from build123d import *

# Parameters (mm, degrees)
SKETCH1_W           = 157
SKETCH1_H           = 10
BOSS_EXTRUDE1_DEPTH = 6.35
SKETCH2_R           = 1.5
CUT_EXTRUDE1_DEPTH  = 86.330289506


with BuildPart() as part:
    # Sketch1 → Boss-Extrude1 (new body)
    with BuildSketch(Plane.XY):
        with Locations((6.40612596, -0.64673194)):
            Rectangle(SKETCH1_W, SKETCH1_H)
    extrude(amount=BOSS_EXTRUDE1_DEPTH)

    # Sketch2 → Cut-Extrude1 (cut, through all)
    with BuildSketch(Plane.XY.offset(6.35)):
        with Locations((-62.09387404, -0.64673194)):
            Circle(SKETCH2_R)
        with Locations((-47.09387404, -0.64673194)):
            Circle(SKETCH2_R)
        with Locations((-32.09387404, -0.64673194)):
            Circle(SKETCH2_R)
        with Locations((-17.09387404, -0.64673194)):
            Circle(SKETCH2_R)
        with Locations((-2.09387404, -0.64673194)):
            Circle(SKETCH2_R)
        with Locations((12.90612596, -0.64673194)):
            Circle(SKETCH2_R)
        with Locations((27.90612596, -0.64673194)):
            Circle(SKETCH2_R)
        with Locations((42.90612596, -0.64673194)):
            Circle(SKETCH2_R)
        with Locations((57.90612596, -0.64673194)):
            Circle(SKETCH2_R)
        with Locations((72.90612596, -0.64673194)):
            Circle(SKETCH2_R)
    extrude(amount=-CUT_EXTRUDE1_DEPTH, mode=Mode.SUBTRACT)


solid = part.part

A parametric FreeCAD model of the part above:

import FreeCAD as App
import Part
import Sketcher

V = App.Vector
Q = App.Units.Quantity


def add_polygon(sketch, points):
    """Adds a closed chain of lines whose ends are joined by coincident constraints."""
    first, n = sketch.GeometryCount, len(points)
    for a, b in zip(points, points[1:] + points[:1]):
        sketch.addGeometry(Part.LineSegment(App.Vector(*a, 0), App.Vector(*b, 0)), False)
    for i in range(n):
        sketch.addConstraint(Sketcher.Constraint("Coincident", first + i, 2, first + (i + 1) % n, 1))

doc = App.newDocument("Part")
body = doc.addObject("PartDesign::Body", "Body")

# Sketch on XY plane
sketch1 = doc.addObject("Sketcher::SketchObject", "Sketch")
body.addObject(sketch1)
sketch1.AttachmentSupport = (doc.XY_Plane, [""])
sketch1.MapMode = "FlatFace"
add_polygon(sketch1, [(-72, 4), (-72, -6), (85, -6), (85, 4)])  # lines 0-3
sketch1.addConstraint([
    Sketcher.Constraint("Vertical", 0),
    Sketcher.Constraint("Horizontal", 1),
    Sketcher.Constraint("Vertical", 2),
    Sketcher.Constraint("Horizontal", 3),
    Sketcher.Constraint("DistanceX", 1, 1, 1, 2, Q("157 mm")),
    Sketcher.Constraint("DistanceY", 0, 2, 0, 1, Q("10 mm")),
    Sketcher.Constraint("DistanceY", 0, 2, -1, 1, Q("5.646732 mm")),
    Sketcher.Constraint("DistanceX", 0, 2, -1, 1, Q("72.093874 mm")),
])
pad1 = doc.addObject("PartDesign::Pad", "Pad")
body.addObject(pad1)
pad1.Profile = sketch1
pad1.Length = 6.35

# Sketch on XY plane
sketch2 = doc.addObject("Sketcher::SketchObject", "Sketch001")
body.addObject(sketch2)
sketch2.AttachmentSupport = (doc.XY_Plane, [""])
sketch2.MapMode = "FlatFace"
sketch2.AttachmentOffset = App.Placement(V(0, 0, 6.35), App.Rotation())
sketch2.addGeometry([
    Part.Circle(V(-62.1, -0.6, 0), V(0, 0, 1), 1.5),  # 0
    Part.Circle(V(-47.1, -0.6, 0), V(0, 0, 1), 1.5),  # 1
    Part.Circle(V(-32.1, -0.6, 0), V(0, 0, 1), 1.5),  # 2
    Part.Circle(V(-17.1, -0.6, 0), V(0, 0, 1), 1.5),  # 3
    Part.Circle(V(-2.1, -0.6, 0), V(0, 0, 1), 1.5),  # 4
    Part.Circle(V(12.9, -0.6, 0), V(0, 0, 1), 1.5),  # 5
    Part.Circle(V(27.9, -0.6, 0), V(0, 0, 1), 1.5),  # 6
    Part.Circle(V(42.9, -0.6, 0), V(0, 0, 1), 1.5),  # 7
    Part.Circle(V(57.9, -0.6, 0), V(0, 0, 1), 1.5),  # 8
    Part.Circle(V(72.9, -0.6, 0), V(0, 0, 1), 1.5),  # 9
], False)
sketch2.addConstraint([
    Sketcher.Constraint("Equal", 0, 1),
    Sketcher.Constraint("Equal", 1, 2),
    Sketcher.Constraint("Equal", 2, 3),
    Sketcher.Constraint("Equal", 3, 4),
    Sketcher.Constraint("Equal", 4, 5),
    Sketcher.Constraint("Equal", 5, 6),
    Sketcher.Constraint("Equal", 6, 7),
    Sketcher.Constraint("Equal", 7, 8),
    Sketcher.Constraint("Equal", 8, 9),
    Sketcher.Constraint("Horizontal", 0, 3, 1, 3),
    Sketcher.Constraint("Horizontal", 1, 3, 2, 3),
    Sketcher.Constraint("Horizontal", 2, 3, 3, 3),
    Sketcher.Constraint("Horizontal", 3, 3, 4, 3),
    Sketcher.Constraint("Horizontal", 4, 3, 5, 3),
    Sketcher.Constraint("Horizontal", 5, 3, 6, 3),
    Sketcher.Constraint("Horizontal", 6, 3, 7, 3),
    Sketcher.Constraint("Horizontal", 7, 3, 8, 3),
    Sketcher.Constraint("Horizontal", 8, 3, 9, 3),
    Sketcher.Constraint("Diameter", 0, Q("3 mm")),
    Sketcher.Constraint("DistanceX", 0, 3, 1, 3, Q("15 mm")),
    Sketcher.Constraint("DistanceX", 1, 3, 2, 3, Q("15 mm")),
    Sketcher.Constraint("DistanceX", 2, 3, 3, 3, Q("15 mm")),
    Sketcher.Constraint("DistanceX", 3, 3, 4, 3, Q("15 mm")),
    Sketcher.Constraint("DistanceX", 4, 3, 5, 3, Q("15 mm")),
    Sketcher.Constraint("DistanceX", 5, 3, 6, 3, Q("15 mm")),
    Sketcher.Constraint("DistanceX", 6, 3, 7, 3, Q("15 mm")),
    Sketcher.Constraint("DistanceX", 7, 3, 8, 3, Q("15 mm")),
    Sketcher.Constraint("DistanceX", 8, 3, 9, 3, Q("15 mm")),
    Sketcher.Constraint("DistanceY", 0, 3, -1, 1, Q("0.646732 mm")),
    Sketcher.Constraint("DistanceX", 0, 3, -1, 1, Q("62.093874 mm")),
])
pocket1 = doc.addObject("PartDesign::Pocket", "Pocket")
body.addObject(pocket1)
pocket1.Profile = sketch2
pocket1.Type = "ThroughAll"

doc.recompute()
